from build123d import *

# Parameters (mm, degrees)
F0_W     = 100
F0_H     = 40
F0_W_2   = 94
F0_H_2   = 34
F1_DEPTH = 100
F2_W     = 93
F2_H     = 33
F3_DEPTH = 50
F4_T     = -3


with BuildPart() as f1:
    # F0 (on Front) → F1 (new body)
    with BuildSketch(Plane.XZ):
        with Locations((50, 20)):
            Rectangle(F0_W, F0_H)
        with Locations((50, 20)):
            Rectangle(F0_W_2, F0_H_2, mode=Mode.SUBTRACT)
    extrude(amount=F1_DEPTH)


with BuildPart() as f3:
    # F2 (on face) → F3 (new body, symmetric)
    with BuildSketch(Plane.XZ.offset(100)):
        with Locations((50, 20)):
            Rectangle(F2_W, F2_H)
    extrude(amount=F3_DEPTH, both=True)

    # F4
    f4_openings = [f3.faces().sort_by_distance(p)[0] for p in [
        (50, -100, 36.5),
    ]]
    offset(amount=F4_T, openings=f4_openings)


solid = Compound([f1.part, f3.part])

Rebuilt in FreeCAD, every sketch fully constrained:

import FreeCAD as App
import Part
import Sketcher

V = App.Vector


def faces_at(feature, points):
    """Names of the faces that lie closest to the given points."""
    faces = feature.Shape.Faces
    near = lambda p: min(range(len(faces)), key=lambda i: faces[i].distToShape(Part.Vertex(*p))[0])
    return sorted({f"Face{near(p) + 1}" for p in points})

doc = App.newDocument("Part")
params = doc.addObject("Spreadsheet::Sheet", "Params")
for row, (alias, value) in enumerate([
    ("sketch1_width", "100 mm"),
    ("sketch1_width2", "94 mm"),
    ("sketch1_height", "40 mm"),
    ("sketch1_height2", "34 mm"),
    ("pad1_length", "100 mm"),
    ("sketch2_width", "93 mm"),
    ("sketch2_height", "33 mm"),
    ("pad2_length", "100 mm"),
    ("thickness_wall", "3 mm"),
], start=1):
    params.set(f"A{row}", alias)
    params.set(f"B{row}", "=" + value)
    params.setAlias(f"B{row}", alias)

body = doc.addObject("PartDesign::Body", "Body")

sketch1 = doc.addObject("Sketcher::SketchObject", "Sketch")
body.addObject(sketch1)
sketch1.AttachmentSupport = (doc.XZ_Plane, [""])
sketch1.MapMode = "FlatFace"
sketch1.addGeometry([
    Part.LineSegment(V(0, 40, 0), V(0, 0, 0)),
    Part.LineSegment(V(0, 0, 0), V(100, 0, 0)),
    Part.LineSegment(V(100, 0, 0), V(100, 40, 0)),
    Part.LineSegment(V(100, 40, 0), V(0, 40, 0)),
    Part.LineSegment(V(97, 3, 0), V(3, 3, 0)),
    Part.LineSegment(V(3, 3, 0), V(3, 37, 0)),
    Part.LineSegment(V(3, 37, 0), V(97, 37, 0)),
    Part.LineSegment(V(97, 37, 0), V(97, 3, 0)),
], False)
sketch1.addConstraint([
    Sketcher.Constraint("Coincident", 0, 2, 1, 1),
    Sketcher.Constraint("Coincident", 1, 2, 2, 1),
    Sketcher.Constraint("Coincident", 2, 2, 3, 1),
    Sketcher.Constraint("Coincident", 3, 2, 0, 1),
    Sketcher.Constraint("Coincident", 4, 2, 5, 1),
    Sketcher.Constraint("Coincident", 5, 2, 6, 1),
    Sketcher.Constraint("Coincident", 6, 2, 7, 1),
    Sketcher.Constraint("Coincident", 7, 2, 4, 1),
    Sketcher.Constraint("Vertical", 0),
    Sketcher.Constraint("Horizontal", 1),
    Sketcher.Constraint("Vertical", 2),
    Sketcher.Constraint("Horizontal", 3),
    Sketcher.Constraint("Horizontal", 4),
    Sketcher.Constraint("Vertical", 5),
    Sketcher.Constraint("Horizontal", 6),
    Sketcher.Constraint("Vertical", 7),
    Sketcher.Constraint("Coincident", 0, 2, -1, 1),
    Sketcher.Constraint("DistanceX", 1, 1, 1, 2, 100.0),
    Sketcher.Constraint("DistanceX", 4, 2, 4, 1, 94.0),
    Sketcher.Constraint("DistanceY", 0, 2, 0, 1, 40.0),
    Sketcher.Constraint("DistanceY", 5, 1, 5, 2, 34.0),
    Sketcher.Constraint("DistanceX", -1, 1, 4, 2, 3.0),
    Sketcher.Constraint("DistanceY", -1, 1, 4, 2, 3.0),
])
sketch1.setExpression("Constraints[17]", "Params.sketch1_width")
sketch1.setExpression("Constraints[18]", "Params.sketch1_width2")
sketch1.setExpression("Constraints[19]", "Params.sketch1_height")
sketch1.setExpression("Constraints[20]", "Params.sketch1_height2")
pad1 = doc.addObject("PartDesign::Pad", "Pad")
body.addObject(pad1)
pad1.Profile = sketch1
pad1.setExpression("Length", "Params.pad1_length")
body2 = doc.addObject("PartDesign::Body", "Body001")

sketch2 = doc.addObject("Sketcher::SketchObject", "Sketch001")
body2.addObject(sketch2)
sketch2.AttachmentSupport = (doc.getObject("XZ_Plane001"), [""])
sketch2.MapMode = "FlatFace"
sketch2.AttachmentOffset = App.Placement(V(0, 0, 100), App.Rotation())
sketch2.addGeometry([
    Part.LineSegment(V(3.5, 36.5, 0), V(3.5, 3.5, 0)),
    Part.LineSegment(V(3.5, 3.5, 0), V(96.5, 3.5, 0)),
    Part.LineSegment(V(96.5, 3.5, 0), V(96.5, 36.5, 0)),
    Part.LineSegment(V(96.5, 36.5, 0), V(3.5, 36.5, 0)),
], False)
sketch2.addConstraint([
    Sketcher.Constraint("Coincident", 0, 2, 1, 1),
    Sketcher.Constraint("Coincident", 1, 2, 2, 1),
    Sketcher.Constraint("Coincident", 2, 2, 3, 1),
    Sketcher.Constraint("Coincident", 3, 2, 0, 1),
    Sketcher.Constraint("Vertical", 0),
    Sketcher.Constraint("Horizontal", 1),
    Sketcher.Constraint("Vertical", 2),
    Sketcher.Constraint("Horizontal", 3),
    Sketcher.Constraint("DistanceX", 1, 1, 1, 2, 93.0),
    Sketcher.Constraint("DistanceY", 0, 2, 0, 1, 33.0),
    Sketcher.Constraint("DistanceX", -1, 1, 0, 2, 3.5),
    Sketcher.Constraint("DistanceY", -1, 1, 0, 2, 3.5),
])
sketch2.setExpression("Constraints[8]", "Params.sketch2_width")
sketch2.setExpression("Constraints[9]", "Params.sketch2_height")
pad2 = doc.addObject("PartDesign::Pad", "Pad001")
body2.addObject(pad2)
pad2.Profile = sketch2
pad2.setExpression("Length", "Params.pad2_length")
pad2.Midplane = True
doc.recompute()

thickness = doc.addObject("PartDesign::Thickness", "Thickness")
body2.addObject(thickness)
thickness.Base = (pad2, faces_at(pad2, [(50, -100, 36.5)]))
thickness.setExpression("Value", "Params.thickness_wall")
thickness.Reversed = True
thickness.Join = "Arc"

doc.recompute()
